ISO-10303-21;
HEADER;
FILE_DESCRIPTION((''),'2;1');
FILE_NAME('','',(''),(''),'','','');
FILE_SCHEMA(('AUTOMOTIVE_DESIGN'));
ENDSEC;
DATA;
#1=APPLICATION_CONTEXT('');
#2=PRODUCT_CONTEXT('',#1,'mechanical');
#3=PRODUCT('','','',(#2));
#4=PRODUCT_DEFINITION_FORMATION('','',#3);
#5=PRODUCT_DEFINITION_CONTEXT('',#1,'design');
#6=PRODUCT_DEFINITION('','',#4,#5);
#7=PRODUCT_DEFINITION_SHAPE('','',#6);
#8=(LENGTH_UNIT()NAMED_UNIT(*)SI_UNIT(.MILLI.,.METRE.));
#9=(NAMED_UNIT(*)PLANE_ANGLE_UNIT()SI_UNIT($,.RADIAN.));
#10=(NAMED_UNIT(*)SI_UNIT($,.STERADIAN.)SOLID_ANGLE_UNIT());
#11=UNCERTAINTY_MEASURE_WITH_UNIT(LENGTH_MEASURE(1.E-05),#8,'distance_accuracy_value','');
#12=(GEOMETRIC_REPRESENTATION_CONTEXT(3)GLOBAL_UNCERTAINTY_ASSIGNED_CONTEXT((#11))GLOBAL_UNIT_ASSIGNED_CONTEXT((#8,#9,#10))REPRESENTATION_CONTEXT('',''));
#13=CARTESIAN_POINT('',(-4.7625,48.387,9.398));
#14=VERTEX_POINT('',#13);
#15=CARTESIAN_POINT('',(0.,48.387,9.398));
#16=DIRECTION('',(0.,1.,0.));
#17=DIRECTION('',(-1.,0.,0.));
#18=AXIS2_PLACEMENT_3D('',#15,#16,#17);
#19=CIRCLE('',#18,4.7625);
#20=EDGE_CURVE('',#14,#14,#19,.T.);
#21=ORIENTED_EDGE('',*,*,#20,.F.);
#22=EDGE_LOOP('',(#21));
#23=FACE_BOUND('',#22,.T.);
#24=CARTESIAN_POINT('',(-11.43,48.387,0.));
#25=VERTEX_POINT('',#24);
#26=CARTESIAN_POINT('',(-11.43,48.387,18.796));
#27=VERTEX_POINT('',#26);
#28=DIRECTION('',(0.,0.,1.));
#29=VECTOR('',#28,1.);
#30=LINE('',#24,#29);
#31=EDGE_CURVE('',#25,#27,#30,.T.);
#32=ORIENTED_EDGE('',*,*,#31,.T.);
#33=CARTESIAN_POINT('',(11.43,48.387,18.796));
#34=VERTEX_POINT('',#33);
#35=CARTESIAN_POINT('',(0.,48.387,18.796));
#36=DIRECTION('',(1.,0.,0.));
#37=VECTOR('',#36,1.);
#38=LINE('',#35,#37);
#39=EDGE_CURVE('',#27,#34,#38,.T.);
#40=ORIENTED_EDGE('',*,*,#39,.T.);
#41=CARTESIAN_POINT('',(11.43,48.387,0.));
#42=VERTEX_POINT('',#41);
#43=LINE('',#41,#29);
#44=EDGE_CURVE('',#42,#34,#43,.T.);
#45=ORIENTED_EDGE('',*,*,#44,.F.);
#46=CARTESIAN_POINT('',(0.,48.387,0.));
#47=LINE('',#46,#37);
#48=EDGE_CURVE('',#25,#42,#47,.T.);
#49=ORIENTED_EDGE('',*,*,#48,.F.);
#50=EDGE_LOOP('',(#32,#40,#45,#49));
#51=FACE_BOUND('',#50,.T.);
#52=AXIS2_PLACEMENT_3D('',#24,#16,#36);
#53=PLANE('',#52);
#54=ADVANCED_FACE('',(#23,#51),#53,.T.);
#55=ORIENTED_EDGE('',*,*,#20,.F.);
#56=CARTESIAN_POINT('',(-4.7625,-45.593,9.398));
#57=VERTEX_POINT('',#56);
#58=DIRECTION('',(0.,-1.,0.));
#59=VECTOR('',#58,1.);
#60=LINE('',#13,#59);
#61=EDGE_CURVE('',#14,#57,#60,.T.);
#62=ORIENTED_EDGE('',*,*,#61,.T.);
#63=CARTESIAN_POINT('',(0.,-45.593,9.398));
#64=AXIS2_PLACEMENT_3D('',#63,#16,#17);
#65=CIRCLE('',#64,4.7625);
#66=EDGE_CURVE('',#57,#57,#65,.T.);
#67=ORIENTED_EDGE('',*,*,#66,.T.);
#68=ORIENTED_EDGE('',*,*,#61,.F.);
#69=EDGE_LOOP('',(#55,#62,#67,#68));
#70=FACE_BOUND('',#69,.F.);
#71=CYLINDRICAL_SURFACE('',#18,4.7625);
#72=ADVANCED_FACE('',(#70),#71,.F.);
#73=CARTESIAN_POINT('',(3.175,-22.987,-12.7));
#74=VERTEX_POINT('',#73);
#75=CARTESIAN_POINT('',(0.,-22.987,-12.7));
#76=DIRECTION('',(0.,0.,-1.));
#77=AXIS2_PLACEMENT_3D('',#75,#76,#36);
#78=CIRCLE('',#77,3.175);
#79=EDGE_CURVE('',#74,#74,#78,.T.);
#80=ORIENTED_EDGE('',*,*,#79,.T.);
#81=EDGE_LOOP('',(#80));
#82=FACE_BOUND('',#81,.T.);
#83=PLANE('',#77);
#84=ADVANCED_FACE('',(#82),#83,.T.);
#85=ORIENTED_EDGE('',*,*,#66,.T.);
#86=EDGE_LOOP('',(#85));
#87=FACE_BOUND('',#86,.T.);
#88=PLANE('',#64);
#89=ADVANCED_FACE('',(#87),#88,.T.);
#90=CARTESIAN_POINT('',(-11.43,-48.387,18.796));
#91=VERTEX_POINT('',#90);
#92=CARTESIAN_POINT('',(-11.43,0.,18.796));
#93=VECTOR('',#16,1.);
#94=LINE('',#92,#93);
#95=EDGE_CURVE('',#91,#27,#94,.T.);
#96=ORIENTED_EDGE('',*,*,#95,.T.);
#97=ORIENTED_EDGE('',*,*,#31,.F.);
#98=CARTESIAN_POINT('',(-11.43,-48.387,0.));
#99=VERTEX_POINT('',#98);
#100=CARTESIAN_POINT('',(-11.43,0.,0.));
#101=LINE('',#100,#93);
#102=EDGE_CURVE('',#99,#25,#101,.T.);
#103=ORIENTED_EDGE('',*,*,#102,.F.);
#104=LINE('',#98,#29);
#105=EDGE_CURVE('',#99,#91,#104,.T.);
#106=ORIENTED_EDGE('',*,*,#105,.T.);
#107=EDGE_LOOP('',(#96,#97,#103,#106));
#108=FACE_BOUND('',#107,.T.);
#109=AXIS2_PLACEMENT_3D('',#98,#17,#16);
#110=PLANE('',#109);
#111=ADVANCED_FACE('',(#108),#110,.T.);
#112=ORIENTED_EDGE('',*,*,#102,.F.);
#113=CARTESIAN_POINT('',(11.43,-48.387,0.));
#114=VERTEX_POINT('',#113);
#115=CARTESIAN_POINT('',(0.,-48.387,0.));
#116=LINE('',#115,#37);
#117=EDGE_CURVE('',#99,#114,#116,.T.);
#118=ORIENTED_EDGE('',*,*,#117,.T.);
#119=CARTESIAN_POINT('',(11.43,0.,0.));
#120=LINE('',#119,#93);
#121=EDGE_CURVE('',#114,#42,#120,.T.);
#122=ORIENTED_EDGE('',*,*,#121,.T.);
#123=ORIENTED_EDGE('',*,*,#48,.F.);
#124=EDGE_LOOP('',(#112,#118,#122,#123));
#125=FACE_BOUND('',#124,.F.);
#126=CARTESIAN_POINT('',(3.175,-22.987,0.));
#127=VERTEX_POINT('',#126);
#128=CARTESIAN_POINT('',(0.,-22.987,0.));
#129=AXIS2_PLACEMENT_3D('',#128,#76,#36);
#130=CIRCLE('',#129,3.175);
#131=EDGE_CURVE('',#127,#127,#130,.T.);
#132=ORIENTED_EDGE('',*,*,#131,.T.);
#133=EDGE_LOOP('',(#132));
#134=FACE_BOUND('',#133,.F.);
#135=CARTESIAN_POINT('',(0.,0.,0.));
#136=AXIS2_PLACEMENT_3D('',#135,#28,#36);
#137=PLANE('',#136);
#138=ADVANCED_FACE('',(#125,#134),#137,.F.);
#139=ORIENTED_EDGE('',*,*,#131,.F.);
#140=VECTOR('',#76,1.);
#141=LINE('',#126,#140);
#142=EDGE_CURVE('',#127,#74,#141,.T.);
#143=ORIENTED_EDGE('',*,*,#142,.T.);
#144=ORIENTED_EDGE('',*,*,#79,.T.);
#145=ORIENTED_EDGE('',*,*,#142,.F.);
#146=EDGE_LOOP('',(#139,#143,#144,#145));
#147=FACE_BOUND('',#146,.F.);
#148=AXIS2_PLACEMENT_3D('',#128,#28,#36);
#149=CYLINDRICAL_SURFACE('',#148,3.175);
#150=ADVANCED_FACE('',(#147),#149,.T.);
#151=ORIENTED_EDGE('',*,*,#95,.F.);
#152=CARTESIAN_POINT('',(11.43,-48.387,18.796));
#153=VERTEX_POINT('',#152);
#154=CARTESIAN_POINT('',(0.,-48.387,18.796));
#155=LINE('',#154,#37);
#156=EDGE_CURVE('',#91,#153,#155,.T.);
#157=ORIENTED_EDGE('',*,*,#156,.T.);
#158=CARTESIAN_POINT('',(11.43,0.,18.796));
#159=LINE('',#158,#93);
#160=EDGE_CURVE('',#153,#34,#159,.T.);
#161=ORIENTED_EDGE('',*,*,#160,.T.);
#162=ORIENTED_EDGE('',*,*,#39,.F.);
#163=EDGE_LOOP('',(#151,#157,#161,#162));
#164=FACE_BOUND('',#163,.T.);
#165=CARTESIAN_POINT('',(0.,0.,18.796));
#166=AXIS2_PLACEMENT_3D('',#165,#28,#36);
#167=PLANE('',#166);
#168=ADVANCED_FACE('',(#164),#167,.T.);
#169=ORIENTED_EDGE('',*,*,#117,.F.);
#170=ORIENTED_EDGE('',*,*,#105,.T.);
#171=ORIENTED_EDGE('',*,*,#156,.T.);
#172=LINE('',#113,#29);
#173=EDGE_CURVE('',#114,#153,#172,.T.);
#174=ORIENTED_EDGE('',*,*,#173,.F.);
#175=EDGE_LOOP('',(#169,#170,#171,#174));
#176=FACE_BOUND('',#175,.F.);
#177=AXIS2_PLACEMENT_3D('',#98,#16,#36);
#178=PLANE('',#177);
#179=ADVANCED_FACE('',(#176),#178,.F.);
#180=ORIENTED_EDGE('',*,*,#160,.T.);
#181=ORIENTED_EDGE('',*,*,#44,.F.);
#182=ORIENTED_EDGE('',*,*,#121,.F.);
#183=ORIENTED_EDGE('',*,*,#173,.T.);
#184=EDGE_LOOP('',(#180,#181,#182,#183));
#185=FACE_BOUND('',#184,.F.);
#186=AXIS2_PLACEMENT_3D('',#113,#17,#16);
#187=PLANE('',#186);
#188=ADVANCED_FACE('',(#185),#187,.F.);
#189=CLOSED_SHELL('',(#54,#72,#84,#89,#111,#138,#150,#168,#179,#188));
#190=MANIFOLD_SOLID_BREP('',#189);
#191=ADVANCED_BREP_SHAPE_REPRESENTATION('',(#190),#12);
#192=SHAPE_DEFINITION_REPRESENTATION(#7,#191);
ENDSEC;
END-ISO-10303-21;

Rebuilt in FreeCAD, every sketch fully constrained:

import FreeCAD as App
import Part
import Sketcher
Q = App.Units.Quantity


def add_polygon(sketch, points):
    """Adds a closed chain of lines whose ends are joined by coincident constraints."""
    first, n = sketch.GeometryCount, len(points)
    for a, b in zip(points, points[1:] + points[:1]):
        sketch.addGeometry(Part.LineSegment(App.Vector(*a, 0), App.Vector(*b, 0)), False)
    for i in range(n):
        sketch.addConstraint(Sketcher.Constraint("Coincident", first + i, 2, first + (i + 1) % n, 1))

doc = App.newDocument("Part")
body = doc.addObject("PartDesign::Body", "Body")

# Sketch on XY plane
sketch1 = body.newObject("Sketcher::SketchObject", "Sketch")
sketch1.AttachmentSupport = (doc.getObject("XY_Plane"), [""])
sketch1.MapMode = "FlatFace"
add_polygon(sketch1, [(-11.43, 48.387), (-11.43, -48.387), (11.43, -48.387), (11.43, 48.387)])  # lines 0-3
sketch1.addConstraint([
    Sketcher.Constraint("Vertical", 0),
    Sketcher.Constraint("Horizontal", 1),
    Sketcher.Constraint("Vertical", 2),
    Sketcher.Constraint("Horizontal", 3),
    Sketcher.Constraint("Symmetric", 0, 2, 2, 2, -1, 1),
    Sketcher.Constraint("DistanceX", 1, 1, 1, 2, Q("0.9 in")),
    Sketcher.Constraint("DistanceY", 0, 2, 0, 1, Q("3.81 in")),
])
pad1 = body.newObject("PartDesign::Pad", "Pad")
pad1.Profile = sketch1
pad1.Length = Q("0.74 in")

# Sketch on XZ plane
sketch2 = body.newObject("Sketcher::SketchObject", "Sketch001")
sketch2.AttachmentSupport = (doc.getObject("XZ_Plane"), [""])
sketch2.MapMode = "FlatFace"
sketch2.AttachmentOffset = App.Placement(App.Vector(0, 0, -1.905 * 25.4), App.Rotation())
sketch2.addGeometry(Part.Circle(App.Vector(0, 9.398, 0), App.Vector(0, 0, 1), 4.7625), False)
sketch2.addConstraint([
    Sketcher.Constraint("PointOnObject", 0, 3, -2),
    Sketcher.Constraint("Diameter", 0, Q("0.375 in")),
    Sketcher.Constraint("DistanceY", -1, 1, 0, 3, Q("0.37 in")),
])
pocket1 = body.newObject("PartDesign::Pocket", "Pocket")
pocket1.Profile = sketch2
pocket1.Length = Q("3.7 in")
pocket1.Reversed = True

# Sketch on XY plane
sketch3 = body.newObject("Sketcher::SketchObject", "Sketch002")
sketch3.AttachmentSupport = (doc.getObject("XY_Plane"), [""])
sketch3.MapMode = "FlatFace"
sketch3.addGeometry(Part.Circle(App.Vector(0, -22.987, 0), App.Vector(0, 0, 1), 3.175), False)
sketch3.addConstraint([
    Sketcher.Constraint("PointOnObject", 0, 3, -2),
    Sketcher.Constraint("Diameter", 0, Q("0.25 in")),
    Sketcher.Constraint("DistanceY", 0, 3, -1, 1, Q("0.905 in")),
])
pad2 = body.newObject("PartDesign::Pad", "Pad001")
pad2.Profile = sketch3
pad2.Length = Q("0.5 in")
pad2.Reversed = True

doc.recompute()
